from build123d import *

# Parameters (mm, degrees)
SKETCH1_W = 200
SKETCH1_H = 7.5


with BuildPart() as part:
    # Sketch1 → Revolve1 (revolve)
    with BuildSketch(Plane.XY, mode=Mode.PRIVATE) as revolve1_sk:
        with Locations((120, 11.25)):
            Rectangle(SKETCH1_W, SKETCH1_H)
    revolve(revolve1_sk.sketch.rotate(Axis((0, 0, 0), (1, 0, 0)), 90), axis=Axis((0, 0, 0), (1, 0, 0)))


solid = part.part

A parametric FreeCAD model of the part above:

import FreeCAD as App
import Part
import Sketcher
from FreeCAD import Vector
Q = App.Units.Quantity

doc = App.newDocument("Part")
body = doc.addObject("PartDesign::Body", "Body")

sketch1 = doc.addObject("Sketcher::SketchObject", "Sketch")
body.addObject(sketch1)
sketch1.AttachmentSupport = (doc.XY_Plane, [""])
sketch1.MapMode = "FlatFace"
sketch1.addGeometry([
    Part.LineSegment(Vector(20, 15, 0), Vector(20, 8, 0)),
    Part.LineSegment(Vector(20, 8, 0), Vector(220, 8, 0)),
    Part.LineSegment(Vector(220, 8, 0), Vector(220, 15, 0)),
    Part.LineSegment(Vector(220, 15, 0), Vector(20, 15, 0)),
], False)
sketch1.addConstraint([
    Sketcher.Constraint("Coincident", 0, 2, 1, 1),
    Sketcher.Constraint("Coincident", 1, 2, 2, 1),
    Sketcher.Constraint("Coincident", 2, 2, 3, 1),
    Sketcher.Constraint("Coincident", 3, 2, 0, 1),
    Sketcher.Constraint("Vertical", 0),
    Sketcher.Constraint("Horizontal", 1),
    Sketcher.Constraint("Vertical", 2),
    Sketcher.Constraint("Horizontal", 3),
    Sketcher.Constraint("DistanceX", 1, 1, 1, 2, Q("200 mm")),
    Sketcher.Constraint("DistanceY", 0, 2, 0, 1, Q("7.5 mm")),
    Sketcher.Constraint("DistanceX", -1, 1, 0, 2, Q("20 mm")),
    Sketcher.Constraint("DistanceY", -1, 1, 2, 2, Q("15 mm")),
])
revolution = doc.addObject("PartDesign::Revolution", "Revolution")
body.addObject(revolution)
revolution.Profile = sketch1
revolution.ReferenceAxis = (sketch1, ["H_Axis"])
revolution.Angle = 360

doc.recompute()
